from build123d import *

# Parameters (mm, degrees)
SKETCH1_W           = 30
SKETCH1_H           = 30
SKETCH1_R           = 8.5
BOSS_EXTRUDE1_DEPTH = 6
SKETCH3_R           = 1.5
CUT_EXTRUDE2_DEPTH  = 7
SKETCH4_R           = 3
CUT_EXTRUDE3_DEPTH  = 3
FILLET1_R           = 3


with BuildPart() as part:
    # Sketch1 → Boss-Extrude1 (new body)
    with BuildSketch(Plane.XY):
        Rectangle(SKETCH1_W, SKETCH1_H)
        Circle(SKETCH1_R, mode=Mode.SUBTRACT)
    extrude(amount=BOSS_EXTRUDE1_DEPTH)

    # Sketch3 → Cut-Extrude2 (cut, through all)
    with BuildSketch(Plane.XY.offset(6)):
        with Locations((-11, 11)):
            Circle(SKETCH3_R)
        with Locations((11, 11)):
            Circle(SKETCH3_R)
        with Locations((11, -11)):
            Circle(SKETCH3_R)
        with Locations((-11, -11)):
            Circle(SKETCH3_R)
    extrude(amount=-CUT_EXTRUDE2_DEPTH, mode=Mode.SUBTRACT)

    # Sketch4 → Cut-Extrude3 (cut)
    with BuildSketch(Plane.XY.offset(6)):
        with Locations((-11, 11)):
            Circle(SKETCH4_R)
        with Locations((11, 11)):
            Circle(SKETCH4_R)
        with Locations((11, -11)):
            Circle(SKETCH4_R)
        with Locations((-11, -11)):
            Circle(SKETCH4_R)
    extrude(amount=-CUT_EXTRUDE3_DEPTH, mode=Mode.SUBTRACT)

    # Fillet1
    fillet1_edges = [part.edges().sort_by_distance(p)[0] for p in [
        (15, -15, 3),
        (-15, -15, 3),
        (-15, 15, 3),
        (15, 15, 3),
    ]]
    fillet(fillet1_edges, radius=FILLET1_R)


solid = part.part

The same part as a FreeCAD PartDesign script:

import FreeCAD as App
import Part
import Sketcher
from FreeCAD import Vector


def edges_at(feature, points):
    """Names of the edges that pass closest to the given points."""
    edges = feature.Shape.Edges
    near = lambda p: min(range(len(edges)), key=lambda i: edges[i].distToShape(Part.Vertex(*p))[0])
    return sorted({f"Edge{near(p) + 1}" for p in points})


def add_polygon(sketch, points):
    """Adds a closed chain of lines whose ends are joined by coincident constraints."""
    first, n = sketch.GeometryCount, len(points)
    for a, b in zip(points, points[1:] + points[:1]):
        sketch.addGeometry(Part.LineSegment(App.Vector(*a, 0), App.Vector(*b, 0)), False)
    for i in range(n):
        sketch.addConstraint(Sketcher.Constraint("Coincident", first + i, 2, first + (i + 1) % n, 1))

doc = App.newDocument("Part")
body = doc.addObject("PartDesign::Body", "Body")

sketch1 = body.newObject("Sketcher::SketchObject", "Sketch")
sketch1.AttachmentSupport = (doc.getObject("XY_Plane"), [""])
sketch1.MapMode = "FlatFace"
add_polygon(sketch1, [(-15, 15), (-15, -15), (15, -15), (15, 15)])
sketch1.addGeometry(Part.Circle(Vector(0, 0, 0), Vector(0, 0, 1), 8), False)
sketch1.addConstraint([
    Sketcher.Constraint("Vertical", 0),
    Sketcher.Constraint("Horizontal", 1),
    Sketcher.Constraint("Vertical", 2),
    Sketcher.Constraint("Horizontal", 3),
    Sketcher.Constraint("Coincident", 4, 3, -1, 1),
    Sketcher.Constraint("Symmetric", 0, 2, 2, 2, -1, 1),
    Sketcher.Constraint("Equal", 3, 0),
    Sketcher.Constraint("Diameter", 4, 17.0),
    Sketcher.Constraint("DistanceX", 1, 1, 1, 2, 30.0),
])
pad1 = body.newObject("PartDesign::Pad", "Pad")
pad1.Profile = sketch1
pad1.Length = 6

sketch2 = body.newObject("Sketcher::SketchObject", "Sketch001")
sketch2.AttachmentSupport = (doc.getObject("XY_Plane"), [""])
sketch2.MapMode = "FlatFace"
sketch2.AttachmentOffset = App.Placement(Vector(0, 0, 6), App.Rotation())
sketch2.addGeometry([
    Part.Circle(Vector(-11, 11, 0), Vector(0, 0, 1), 1.5),
    Part.Circle(Vector(11, 11, 0), Vector(0, 0, 1), 1.5),
    Part.Circle(Vector(11, -11, 0), Vector(0, 0, 1), 1.5),
    Part.Circle(Vector(-11, -11, 0), Vector(0, 0, 1), 1.5),
], False)
sketch2.addConstraint([
    Sketcher.Constraint("Equal", 0, 1),
    Sketcher.Constraint("Equal", 1, 2),
    Sketcher.Constraint("Equal", 2, 3),
    Sketcher.Constraint("Symmetric", 0, 3, 2, 3, -1, 1),
    Sketcher.Constraint("Symmetric", 1, 3, 3, 3, -1, 1),
    Sketcher.Constraint("Symmetric", 0, 3, 1, 3, -2),
    Sketcher.Constraint("Diameter", 0, 3.0),
    Sketcher.Constraint("DistanceX", 0, 3, -1, 1, 11.0),
    Sketcher.Constraint("DistanceY", -1, 1, 0, 3, 11.0),
])
pocket1 = body.newObject("PartDesign::Pocket", "Pocket")
pocket1.Profile = sketch2
pocket1.Type = "ThroughAll"

sketch3 = body.newObject("Sketcher::SketchObject", "Sketch002")
sketch3.AttachmentSupport = (doc.getObject("XY_Plane"), [""])
sketch3.MapMode = "FlatFace"
sketch3.AttachmentOffset = App.Placement(Vector(0, 0, 6), App.Rotation())
sketch3.addGeometry([
    Part.Circle(Vector(-11, 11, 0), Vector(0, 0, 1), 3),
    Part.Circle(Vector(11, 11, 0), Vector(0, 0, 1), 3),
    Part.Circle(Vector(11, -11, 0), Vector(0, 0, 1), 3),
    Part.Circle(Vector(-11, -11, 0), Vector(0, 0, 1), 3),
], False)
sketch3.addConstraint([
    Sketcher.Constraint("Equal", 0, 1),
    Sketcher.Constraint("Equal", 1, 2),
    Sketcher.Constraint("Equal", 2, 3),
    Sketcher.Constraint("Symmetric", 0, 3, 2, 3, -1, 1),
    Sketcher.Constraint("Symmetric", 1, 3, 3, 3, -1, 1),
    Sketcher.Constraint("Symmetric", 0, 3, 1, 3, -2),
    Sketcher.Constraint("Diameter", 0, 6.0),
    Sketcher.Constraint("DistanceX", 0, 3, -1, 1, 11.0),
    Sketcher.Constraint("DistanceY", -1, 1, 0, 3, 11.0),
])
pocket2 = body.newObject("PartDesign::Pocket", "Pocket001")
pocket2.Profile = sketch3
pocket2.Length = 3
doc.recompute()

fillet = body.newObject("PartDesign::Fillet", "Fillet")
fillet.Base = (pocket2, edges_at(pocket2, [
    (15, -15, 3),
    (-15, -15, 3),
    (-15, 15, 3),
    (15, 15, 3),
]))
fillet.Radius = 3

doc.recompute()
